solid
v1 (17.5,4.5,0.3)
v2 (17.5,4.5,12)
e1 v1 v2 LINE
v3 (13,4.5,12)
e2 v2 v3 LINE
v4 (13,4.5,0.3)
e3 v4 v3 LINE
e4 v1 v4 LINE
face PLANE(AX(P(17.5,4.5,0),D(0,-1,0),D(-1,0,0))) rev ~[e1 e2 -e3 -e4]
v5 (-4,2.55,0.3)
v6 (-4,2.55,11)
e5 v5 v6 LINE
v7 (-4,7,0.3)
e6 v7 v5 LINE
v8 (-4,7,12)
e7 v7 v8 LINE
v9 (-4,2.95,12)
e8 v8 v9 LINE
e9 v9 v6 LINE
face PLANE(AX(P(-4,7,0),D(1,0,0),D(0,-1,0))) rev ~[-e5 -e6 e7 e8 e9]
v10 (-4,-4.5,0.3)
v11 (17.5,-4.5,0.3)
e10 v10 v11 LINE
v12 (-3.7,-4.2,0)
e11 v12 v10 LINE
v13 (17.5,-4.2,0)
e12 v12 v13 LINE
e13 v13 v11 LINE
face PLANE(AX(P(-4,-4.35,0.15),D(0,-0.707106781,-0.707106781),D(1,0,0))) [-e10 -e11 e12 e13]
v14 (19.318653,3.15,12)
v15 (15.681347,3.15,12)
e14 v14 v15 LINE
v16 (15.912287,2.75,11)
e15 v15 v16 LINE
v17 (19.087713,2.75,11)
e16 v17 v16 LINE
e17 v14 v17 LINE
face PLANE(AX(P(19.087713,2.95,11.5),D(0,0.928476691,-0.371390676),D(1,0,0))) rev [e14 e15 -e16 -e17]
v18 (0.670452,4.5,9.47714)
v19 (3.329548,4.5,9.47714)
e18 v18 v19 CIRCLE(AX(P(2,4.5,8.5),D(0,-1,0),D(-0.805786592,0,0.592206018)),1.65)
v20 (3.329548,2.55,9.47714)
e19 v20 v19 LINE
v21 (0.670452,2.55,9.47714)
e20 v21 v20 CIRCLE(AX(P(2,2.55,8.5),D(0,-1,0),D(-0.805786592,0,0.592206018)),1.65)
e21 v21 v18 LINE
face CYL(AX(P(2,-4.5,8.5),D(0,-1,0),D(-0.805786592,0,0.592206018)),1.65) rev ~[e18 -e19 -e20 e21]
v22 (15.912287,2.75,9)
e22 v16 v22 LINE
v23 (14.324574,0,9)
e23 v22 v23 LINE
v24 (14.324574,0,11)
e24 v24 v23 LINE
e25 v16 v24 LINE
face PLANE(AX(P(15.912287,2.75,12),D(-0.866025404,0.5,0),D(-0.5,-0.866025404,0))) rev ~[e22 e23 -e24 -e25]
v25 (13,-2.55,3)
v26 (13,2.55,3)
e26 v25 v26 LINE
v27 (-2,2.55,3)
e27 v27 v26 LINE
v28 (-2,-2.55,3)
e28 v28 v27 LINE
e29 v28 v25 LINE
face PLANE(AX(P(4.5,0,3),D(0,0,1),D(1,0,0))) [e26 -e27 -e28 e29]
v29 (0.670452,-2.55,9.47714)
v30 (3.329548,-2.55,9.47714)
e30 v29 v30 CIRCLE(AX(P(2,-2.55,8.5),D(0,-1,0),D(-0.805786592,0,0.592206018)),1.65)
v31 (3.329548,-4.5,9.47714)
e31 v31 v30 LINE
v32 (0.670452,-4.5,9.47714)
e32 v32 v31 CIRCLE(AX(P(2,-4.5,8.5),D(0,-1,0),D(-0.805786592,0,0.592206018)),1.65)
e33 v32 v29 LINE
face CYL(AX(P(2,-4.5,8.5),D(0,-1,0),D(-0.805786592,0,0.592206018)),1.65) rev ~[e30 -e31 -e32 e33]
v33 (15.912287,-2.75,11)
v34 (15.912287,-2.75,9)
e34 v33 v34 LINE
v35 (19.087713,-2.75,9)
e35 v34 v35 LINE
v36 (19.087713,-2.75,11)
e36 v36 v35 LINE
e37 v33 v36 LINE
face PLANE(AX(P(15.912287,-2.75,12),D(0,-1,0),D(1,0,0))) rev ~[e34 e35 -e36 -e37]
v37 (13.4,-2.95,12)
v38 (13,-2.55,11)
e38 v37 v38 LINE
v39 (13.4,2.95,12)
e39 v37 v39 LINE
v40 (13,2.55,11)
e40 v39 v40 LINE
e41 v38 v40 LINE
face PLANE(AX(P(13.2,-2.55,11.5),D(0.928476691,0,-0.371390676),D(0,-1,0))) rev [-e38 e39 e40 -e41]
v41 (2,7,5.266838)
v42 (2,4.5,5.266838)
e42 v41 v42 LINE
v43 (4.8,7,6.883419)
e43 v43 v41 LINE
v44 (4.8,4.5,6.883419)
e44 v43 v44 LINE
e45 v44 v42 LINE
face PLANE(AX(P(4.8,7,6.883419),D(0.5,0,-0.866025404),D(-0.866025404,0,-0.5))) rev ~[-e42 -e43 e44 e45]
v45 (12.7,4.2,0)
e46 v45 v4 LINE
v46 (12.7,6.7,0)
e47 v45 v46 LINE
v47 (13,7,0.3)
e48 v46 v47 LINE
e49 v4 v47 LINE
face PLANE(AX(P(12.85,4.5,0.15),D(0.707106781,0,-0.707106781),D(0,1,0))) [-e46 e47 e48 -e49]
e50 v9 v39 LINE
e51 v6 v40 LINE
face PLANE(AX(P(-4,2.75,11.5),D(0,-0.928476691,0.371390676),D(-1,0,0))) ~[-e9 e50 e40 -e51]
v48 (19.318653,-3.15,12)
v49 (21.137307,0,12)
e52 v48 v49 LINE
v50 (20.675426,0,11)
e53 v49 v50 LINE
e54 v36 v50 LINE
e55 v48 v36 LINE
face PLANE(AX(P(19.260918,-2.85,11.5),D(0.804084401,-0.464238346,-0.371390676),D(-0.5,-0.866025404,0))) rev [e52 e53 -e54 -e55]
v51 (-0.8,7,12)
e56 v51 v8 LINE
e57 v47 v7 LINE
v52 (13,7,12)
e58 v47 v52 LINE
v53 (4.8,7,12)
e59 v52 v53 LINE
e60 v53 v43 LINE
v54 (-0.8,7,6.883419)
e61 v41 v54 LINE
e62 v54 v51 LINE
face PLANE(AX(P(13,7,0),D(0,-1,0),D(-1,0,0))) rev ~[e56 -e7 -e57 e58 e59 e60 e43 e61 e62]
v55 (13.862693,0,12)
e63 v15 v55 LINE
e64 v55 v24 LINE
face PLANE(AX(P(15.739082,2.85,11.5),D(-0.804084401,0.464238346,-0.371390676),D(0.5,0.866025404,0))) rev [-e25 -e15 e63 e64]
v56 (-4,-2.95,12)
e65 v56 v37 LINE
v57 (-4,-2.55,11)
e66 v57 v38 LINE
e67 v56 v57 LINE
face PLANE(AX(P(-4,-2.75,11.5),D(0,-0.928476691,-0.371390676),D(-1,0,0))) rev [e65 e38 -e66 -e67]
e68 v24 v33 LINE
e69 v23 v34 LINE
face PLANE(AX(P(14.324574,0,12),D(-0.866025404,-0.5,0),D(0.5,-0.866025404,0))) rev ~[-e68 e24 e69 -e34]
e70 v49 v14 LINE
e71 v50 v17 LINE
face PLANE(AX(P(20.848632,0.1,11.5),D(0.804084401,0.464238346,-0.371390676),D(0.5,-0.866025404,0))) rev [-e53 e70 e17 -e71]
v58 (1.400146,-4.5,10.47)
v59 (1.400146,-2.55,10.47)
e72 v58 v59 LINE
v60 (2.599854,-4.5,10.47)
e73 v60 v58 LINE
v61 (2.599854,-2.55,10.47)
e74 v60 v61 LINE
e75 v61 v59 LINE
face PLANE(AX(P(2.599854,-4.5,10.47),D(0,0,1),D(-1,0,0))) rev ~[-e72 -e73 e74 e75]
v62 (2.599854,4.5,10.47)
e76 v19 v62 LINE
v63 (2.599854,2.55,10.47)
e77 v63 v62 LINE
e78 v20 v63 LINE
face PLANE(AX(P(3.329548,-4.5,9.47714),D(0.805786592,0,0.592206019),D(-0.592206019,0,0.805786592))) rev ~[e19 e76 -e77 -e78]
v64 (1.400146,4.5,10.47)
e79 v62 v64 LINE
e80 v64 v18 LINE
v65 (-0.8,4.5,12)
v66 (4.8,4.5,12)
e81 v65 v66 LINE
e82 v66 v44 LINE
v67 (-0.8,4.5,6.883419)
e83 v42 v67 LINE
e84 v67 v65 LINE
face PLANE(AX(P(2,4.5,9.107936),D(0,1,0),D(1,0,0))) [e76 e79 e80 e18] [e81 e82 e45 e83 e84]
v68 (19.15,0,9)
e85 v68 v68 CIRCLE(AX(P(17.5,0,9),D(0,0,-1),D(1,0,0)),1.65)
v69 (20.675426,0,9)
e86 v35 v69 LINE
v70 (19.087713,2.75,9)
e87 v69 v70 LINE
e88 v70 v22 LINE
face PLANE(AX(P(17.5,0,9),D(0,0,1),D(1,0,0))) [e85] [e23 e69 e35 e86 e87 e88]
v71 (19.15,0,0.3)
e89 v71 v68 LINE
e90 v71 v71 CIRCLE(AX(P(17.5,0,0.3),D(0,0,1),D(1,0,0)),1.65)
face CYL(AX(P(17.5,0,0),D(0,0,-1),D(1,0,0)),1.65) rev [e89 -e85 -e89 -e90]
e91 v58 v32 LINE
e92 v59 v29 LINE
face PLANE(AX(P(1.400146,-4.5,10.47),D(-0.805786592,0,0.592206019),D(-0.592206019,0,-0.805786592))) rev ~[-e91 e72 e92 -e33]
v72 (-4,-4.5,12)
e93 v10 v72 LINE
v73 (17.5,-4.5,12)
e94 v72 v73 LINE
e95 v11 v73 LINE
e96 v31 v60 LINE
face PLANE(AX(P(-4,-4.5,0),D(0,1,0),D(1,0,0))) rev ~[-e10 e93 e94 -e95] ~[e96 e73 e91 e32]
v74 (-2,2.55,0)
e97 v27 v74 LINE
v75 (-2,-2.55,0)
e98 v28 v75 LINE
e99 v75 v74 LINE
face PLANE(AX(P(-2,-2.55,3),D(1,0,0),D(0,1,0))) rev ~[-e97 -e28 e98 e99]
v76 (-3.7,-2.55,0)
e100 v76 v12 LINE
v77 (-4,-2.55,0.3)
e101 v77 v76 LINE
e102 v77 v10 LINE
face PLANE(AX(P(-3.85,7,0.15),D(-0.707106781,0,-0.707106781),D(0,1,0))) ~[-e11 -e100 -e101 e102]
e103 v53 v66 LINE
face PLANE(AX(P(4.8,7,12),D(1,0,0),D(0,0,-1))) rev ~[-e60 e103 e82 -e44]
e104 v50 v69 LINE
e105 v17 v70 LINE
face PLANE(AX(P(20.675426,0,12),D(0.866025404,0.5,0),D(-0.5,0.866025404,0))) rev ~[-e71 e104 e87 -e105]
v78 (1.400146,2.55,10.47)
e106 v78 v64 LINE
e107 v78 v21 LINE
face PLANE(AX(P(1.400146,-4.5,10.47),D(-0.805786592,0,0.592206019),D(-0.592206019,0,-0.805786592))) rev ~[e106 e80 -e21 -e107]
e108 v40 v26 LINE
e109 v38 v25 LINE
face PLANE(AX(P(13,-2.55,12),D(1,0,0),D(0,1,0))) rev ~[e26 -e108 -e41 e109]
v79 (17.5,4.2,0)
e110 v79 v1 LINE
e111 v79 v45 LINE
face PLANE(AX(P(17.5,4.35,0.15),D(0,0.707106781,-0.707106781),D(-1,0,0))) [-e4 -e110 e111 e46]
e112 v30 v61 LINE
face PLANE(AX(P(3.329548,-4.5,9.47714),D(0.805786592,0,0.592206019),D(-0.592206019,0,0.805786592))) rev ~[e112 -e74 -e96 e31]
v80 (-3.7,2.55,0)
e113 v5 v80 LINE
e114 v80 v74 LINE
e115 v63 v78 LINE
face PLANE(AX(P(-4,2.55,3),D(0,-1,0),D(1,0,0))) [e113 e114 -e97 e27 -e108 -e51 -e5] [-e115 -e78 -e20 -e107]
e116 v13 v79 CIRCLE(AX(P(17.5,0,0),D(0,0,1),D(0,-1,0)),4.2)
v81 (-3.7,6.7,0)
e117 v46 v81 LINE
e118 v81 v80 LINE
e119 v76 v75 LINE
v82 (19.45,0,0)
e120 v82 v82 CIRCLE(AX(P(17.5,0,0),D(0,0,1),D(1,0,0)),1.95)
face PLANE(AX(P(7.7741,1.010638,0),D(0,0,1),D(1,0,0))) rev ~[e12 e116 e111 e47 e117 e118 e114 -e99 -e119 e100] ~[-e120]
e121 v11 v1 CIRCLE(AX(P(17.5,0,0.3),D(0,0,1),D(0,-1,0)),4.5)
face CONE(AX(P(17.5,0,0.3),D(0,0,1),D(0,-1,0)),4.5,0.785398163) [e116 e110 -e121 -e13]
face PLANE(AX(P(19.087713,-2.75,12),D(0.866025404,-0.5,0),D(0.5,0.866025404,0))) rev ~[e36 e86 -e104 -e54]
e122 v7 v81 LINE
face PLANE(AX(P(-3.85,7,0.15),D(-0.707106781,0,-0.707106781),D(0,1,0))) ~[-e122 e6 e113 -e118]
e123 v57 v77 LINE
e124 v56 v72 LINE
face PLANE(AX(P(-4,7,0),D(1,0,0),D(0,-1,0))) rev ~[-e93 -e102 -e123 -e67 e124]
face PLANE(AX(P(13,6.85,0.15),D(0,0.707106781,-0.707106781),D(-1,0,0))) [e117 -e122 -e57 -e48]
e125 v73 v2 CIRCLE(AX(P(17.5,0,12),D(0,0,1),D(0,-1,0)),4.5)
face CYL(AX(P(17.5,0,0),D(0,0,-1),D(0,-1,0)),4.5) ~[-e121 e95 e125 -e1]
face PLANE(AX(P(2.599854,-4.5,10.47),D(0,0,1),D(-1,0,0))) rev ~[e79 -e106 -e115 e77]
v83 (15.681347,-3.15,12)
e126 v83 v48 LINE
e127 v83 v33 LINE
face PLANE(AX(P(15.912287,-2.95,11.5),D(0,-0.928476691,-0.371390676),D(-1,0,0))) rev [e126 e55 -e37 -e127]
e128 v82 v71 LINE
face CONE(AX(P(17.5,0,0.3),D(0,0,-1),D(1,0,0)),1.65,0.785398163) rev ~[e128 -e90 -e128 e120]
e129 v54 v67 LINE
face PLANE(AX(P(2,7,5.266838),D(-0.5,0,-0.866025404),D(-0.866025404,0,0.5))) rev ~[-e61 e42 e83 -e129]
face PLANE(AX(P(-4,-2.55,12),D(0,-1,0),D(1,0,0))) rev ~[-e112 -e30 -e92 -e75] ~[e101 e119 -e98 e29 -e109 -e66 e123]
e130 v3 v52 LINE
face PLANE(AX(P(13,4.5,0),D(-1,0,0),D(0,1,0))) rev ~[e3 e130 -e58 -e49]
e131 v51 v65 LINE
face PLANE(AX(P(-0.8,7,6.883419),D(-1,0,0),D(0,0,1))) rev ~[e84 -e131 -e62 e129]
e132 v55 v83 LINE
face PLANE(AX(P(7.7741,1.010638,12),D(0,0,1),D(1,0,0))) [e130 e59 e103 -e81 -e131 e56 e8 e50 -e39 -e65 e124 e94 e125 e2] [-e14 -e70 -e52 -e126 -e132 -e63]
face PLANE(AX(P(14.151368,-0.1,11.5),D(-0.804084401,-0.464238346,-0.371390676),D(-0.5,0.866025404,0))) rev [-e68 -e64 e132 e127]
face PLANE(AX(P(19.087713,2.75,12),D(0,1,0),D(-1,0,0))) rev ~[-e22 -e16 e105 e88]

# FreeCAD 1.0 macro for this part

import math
import FreeCAD as App
import Part
import Sketcher
Q = App.Units.Quantity


def edges_at(feature, points):
    """Names of the edges that pass closest to the given points."""
    edges = feature.Shape.Edges
    near = lambda p: min(range(len(edges)), key=lambda i: edges[i].distToShape(Part.Vertex(*p))[0])
    return sorted({f"Edge{near(p) + 1}" for p in points})

doc = App.newDocument("Part")
body = doc.addObject("PartDesign::Body", "Body")

# Sketch on XY plane
sketch1 = body.newObject("Sketcher::SketchObject", "Sketch")
sketch1.AttachmentSupport = (doc.getObject("XY_Plane"), [""])
sketch1.MapMode = "FlatFace"
sketch1.addGeometry([
    Part.LineSegment(App.Vector(-4, 7, 0), App.Vector(-4, -4.5, 0)),  # 0
    Part.LineSegment(App.Vector(-4, -4.5, 0), App.Vector(17.5, -4.5, 0)),  # 1
    Part.ArcOfCircle(Part.Circle(App.Vector(17.5, 0, 0), App.Vector(0, 0, 1), 4.5), math.radians(-90), math.radians(90)),  # 2
    Part.LineSegment(App.Vector(17.5, 4.5, 0), App.Vector(13, 4.5, 0)),  # 3
    Part.LineSegment(App.Vector(13, 4.5, 0), App.Vector(13, 7, 0)),  # 4
    Part.LineSegment(App.Vector(13, 7, 0), App.Vector(-4, 7, 0)),  # 5
    Part.Circle(App.Vector(17.5, 0, 0), App.Vector(0, 0, 1), 1.6),  # 6
], False)
sketch1.addConstraint([
    Sketcher.Constraint("Coincident", 0, 2, 1, 1),
    Sketcher.Constraint("Tangent", 1, 2, 2, 1),
    Sketcher.Constraint("Tangent", 2, 2, 3, 1),
    Sketcher.Constraint("Coincident", 3, 2, 4, 1),
    Sketcher.Constraint("Coincident", 4, 2, 5, 1),
    Sketcher.Constraint("Coincident", 5, 2, 0, 1),
    Sketcher.Constraint("Vertical", 0),
    Sketcher.Constraint("Horizontal", 1),
    Sketcher.Constraint("Horizontal", 3),
    Sketcher.Constraint("Vertical", 4),
    Sketcher.Constraint("Horizontal", 5),
    Sketcher.Constraint("Coincident", 6, 3, 2, 3),
    Sketcher.Constraint("PointOnObject", 2, 3, -1),
    Sketcher.Constraint("Diameter", 6, Q("3.3 mm")),
    Sketcher.Constraint("Radius", 2, Q("4.5 mm")),
    Sketcher.Constraint("DistanceX", 5, 2, 5, 1, Q("17 mm")),
    Sketcher.Constraint("DistanceX", 1, 1, 1, 2, Q("21.5 mm")),
    Sketcher.Constraint("DistanceY", 0, 2, 0, 1, Q("11.5 mm")),
    Sketcher.Constraint("DistanceX", 0, 2, -1, 1, Q("4 mm")),
])
pad1 = body.newObject("PartDesign::Pad", "Pad")
pad1.Profile = sketch1
pad1.Length = 12

# Sketch on XY plane
sketch2 = body.newObject("Sketcher::SketchObject", "Sketch001")
sketch2.AttachmentSupport = (doc.getObject("XY_Plane"), [""])
sketch2.MapMode = "FlatFace"
sketch2.AttachmentOffset = App.Placement(App.Vector(0, 0, 12), App.Rotation())
sketch2.addGeometry([
    Part.LineSegment(App.Vector(-4, 3, 0), App.Vector(-4, -3, 0)),
    Part.LineSegment(App.Vector(-4, -3, 0), App.Vector(13, -3, 0)),
    Part.LineSegment(App.Vector(13, -3, 0), App.Vector(13, 3, 0)),
    Part.LineSegment(App.Vector(13, 3, 0), App.Vector(-4, 3, 0)),
], False)
sketch2.addConstraint([
    Sketcher.Constraint("Coincident", 0, 2, 1, 1),
    Sketcher.Constraint("Coincident", 1, 2, 2, 1),
    Sketcher.Constraint("Coincident", 2, 2, 3, 1),
    Sketcher.Constraint("Coincident", 3, 2, 0, 1),
    Sketcher.Constraint("Vertical", 0),
    Sketcher.Constraint("Horizontal", 1),
    Sketcher.Constraint("Vertical", 2),
    Sketcher.Constraint("Horizontal", 3),
    Sketcher.Constraint("DistanceX", 1, 1, 1, 2, Q("17 mm")),
    Sketcher.Constraint("DistanceY", 0, 2, 0, 1, Q("5.1 mm")),
    Sketcher.Constraint("DistanceX", 0, 2, -1, 1, Q("4 mm")),
    Sketcher.Constraint("DistanceY", 0, 2, -1, 1, Q("2.55 mm")),
])
pocket1 = body.newObject("PartDesign::Pocket", "Pocket")
pocket1.Profile = sketch2
pocket1.Length = 9

# Sketch on XY plane
sketch3 = body.newObject("Sketcher::SketchObject", "Sketch002")
sketch3.AttachmentSupport = (doc.getObject("XY_Plane"), [""])
sketch3.MapMode = "FlatFace"
sketch3.AttachmentOffset = App.Placement(App.Vector(0, 0, 12), App.Rotation())
sketch3.addGeometry([
    Part.LineSegment(App.Vector(14.3, 0, 0), App.Vector(15.9, -2.8, 0)),  # 0
    Part.LineSegment(App.Vector(15.9, -2.8, 0), App.Vector(19.1, -2.8, 0)),  # 1
    Part.LineSegment(App.Vector(19.1, -2.8, 0), App.Vector(20.7, 0, 0)),  # 2
    Part.LineSegment(App.Vector(20.7, 0, 0), App.Vector(19.1, 2.8, 0)),  # 3
    Part.LineSegment(App.Vector(19.1, 2.8, 0), App.Vector(15.9, 2.8, 0)),  # 4
    Part.LineSegment(App.Vector(15.9, 2.8, 0), App.Vector(14.3, 0, 0)),  # 5
], False)
sketch3.addConstraint([
    Sketcher.Constraint("Coincident", 0, 2, 1, 1),
    Sketcher.Constraint("Coincident", 1, 2, 2, 1),
    Sketcher.Constraint("Coincident", 2, 2, 3, 1),
    Sketcher.Constraint("Coincident", 3, 2, 4, 1),
    Sketcher.Constraint("Coincident", 4, 2, 5, 1),
    Sketcher.Constraint("Coincident", 5, 2, 0, 1),
    Sketcher.Constraint("Horizontal", 1),
    Sketcher.Constraint("Horizontal", 4),
    Sketcher.Constraint("Symmetric", 1, 2, 3, 2, -1),
    Sketcher.Constraint("PointOnObject", 2, 2, -1),
    Sketcher.Constraint("PointOnObject", 5, 2, -1),
    Sketcher.Constraint("Parallel", 0, 3),
    Sketcher.Constraint("Parallel", 2, 5),
    Sketcher.Constraint("Angle", 0, Q("-60 deg")),
    Sketcher.Constraint("DistanceY", 1, 2, 3, 2, Q("5.5 mm")),
    Sketcher.Constraint("DistanceX", 1, 1, 1, 2, Q("3.175426 mm")),
    Sketcher.Constraint("DistanceX", -1, 1, 0, 2, Q("15.912287 mm")),
])
pocket2 = body.newObject("PartDesign::Pocket", "Pocket001")
pocket2.Profile = sketch3
pocket2.Length = 3
doc.recompute()

chamfer = body.newObject("PartDesign::Chamfer", "Chamfer")
chamfer.Base = (pocket2, edges_at(pocket2, [
    (4.5, -2.55, 12),
    (13, 0, 12),
    (4.5, 2.55, 12),
    (15.118, 1.375, 12),
    (15.118, -1.375, 12),
    (17.5, -2.75, 12),
    (19.882, -1.375, 12),
    (19.882, 1.375, 12),
    (17.5, 2.75, 12),
]))
chamfer.ChamferType = "Two distances"
chamfer.Size = 0.4
chamfer.Size2 = 1
doc.recompute()

chamfer2 = body.newObject("PartDesign::Chamfer", "Chamfer001")
chamfer2.Base = (chamfer, edges_at(chamfer, [
    (15.85, 0, 0),
    (22, 0, 0),
    (6.75, -4.5, 0),
    (-4, 1.25, 0),
    (4.5, 7, 0),
    (13, 5.75, 0),
    (15.25, 4.5, 0),
]))
chamfer2.Size = 0.3

# Sketch on XZ plane
sketch4 = body.newObject("Sketcher::SketchObject", "Sketch003")
sketch4.AttachmentSupport = (doc.getObject("XZ_Plane"), [""])
sketch4.MapMode = "FlatFace"
sketch4.AttachmentOffset = App.Placement(App.Vector(0, 0, 4.5), App.Rotation())
sketch4.addGeometry([
    Part.LineSegment(App.Vector(2.6, 10.5, 0), App.Vector(3.3, 9.5, 0)),
    Part.ArcOfCircle(Part.Circle(App.Vector(2, 8.5, 0), App.Vector(0, 0, 1), 1.6), math.radians(144), math.radians(396)),
    Part.LineSegment(App.Vector(0.7, 9.5, 0), App.Vector(1.4, 10.5, 0)),
    Part.LineSegment(App.Vector(1.4, 10.5, 0), App.Vector(2.6, 10.5, 0)),
], False)
sketch4.addConstraint([
    Sketcher.Constraint("Tangent", 0, 2, 1, 2),
    Sketcher.Constraint("Tangent", 1, 1, 2, 1),
    Sketcher.Constraint("Coincident", 2, 2, 3, 1),
    Sketcher.Constraint("Coincident", 3, 2, 0, 1),
    Sketcher.Constraint("Horizontal", 3),
    Sketcher.Constraint("Horizontal", 0, 2, 1, 1),
    Sketcher.Constraint("Radius", 1, Q("1.65 mm")),
    Sketcher.Constraint("DistanceX", -1, 1, 1, 3, Q("2 mm")),
    Sketcher.Constraint("DistanceY", -1, 1, 1, 3, Q("8.5 mm")),
    Sketcher.Constraint("DistanceY", -1, 1, 2, 2, Q("10.47 mm")),
    Sketcher.Constraint("DistanceX", 2, 2, 0, 2, Q("1.929402 mm")),
])
pocket3 = body.newObject("PartDesign::Pocket", "Pocket002")
pocket3.Profile = sketch4
pocket3.Type = "ThroughAll"

# Sketch on XZ plane
sketch5 = body.newObject("Sketcher::SketchObject", "Sketch004")
sketch5.AttachmentSupport = (doc.getObject("XZ_Plane"), [""])
sketch5.MapMode = "FlatFace"
sketch5.AttachmentOffset = App.Placement(App.Vector(0, 0, -7), App.Rotation())
sketch5.addGeometry([
    Part.LineSegment(App.Vector(-0.8, 12, 0), App.Vector(4.8, 12, 0)),  # 0
    Part.LineSegment(App.Vector(4.8, 12, 0), App.Vector(4.8, 6.9, 0)),  # 1
    Part.LineSegment(App.Vector(4.8, 6.9, 0), App.Vector(2, 5.3, 0)),  # 2
    Part.LineSegment(App.Vector(2, 5.3, 0), App.Vector(-0.8, 6.9, 0)),  # 3
    Part.LineSegment(App.Vector(-0.8, 6.9, 0), App.Vector(-0.8, 12, 0)),  # 4
], False)
sketch5.addConstraint([
    Sketcher.Constraint("Coincident", 0, 2, 1, 1),
    Sketcher.Constraint("Coincident", 1, 2, 2, 1),
    Sketcher.Constraint("Coincident", 2, 2, 3, 1),
    Sketcher.Constraint("Coincident", 3, 2, 4, 1),
    Sketcher.Constraint("Coincident", 4, 2, 0, 1),
    Sketcher.Constraint("Horizontal", 0),
    Sketcher.Constraint("Vertical", 1),
    Sketcher.Constraint("Vertical", 4),
    Sketcher.Constraint("Horizontal", 1, 2, 3, 2),
    Sketcher.Constraint("Equal", 2, 3),
    Sketcher.Constraint("Angle", 2, Q("-150 deg")),
    Sketcher.Constraint("DistanceX", 0, 1, 0, 2, Q("5.6 mm")),
    Sketcher.Constraint("DistanceY", -1, 1, 0, 2, Q("12 mm")),
    Sketcher.Constraint("DistanceX", -1, 1, 2, 2, Q("2 mm")),
    Sketcher.Constraint("DistanceY", 1, 2, 1, 1, Q("5.116581 mm")),
])
pocket4 = body.newObject("PartDesign::Pocket", "Pocket003")
pocket4.Profile = sketch5
pocket4.Length = 2.5
pocket4.Reversed = True

# Sketch on XY plane
sketch6 = body.newObject("Sketcher::SketchObject", "Sketch005")
sketch6.AttachmentSupport = (doc.getObject("XY_Plane"), [""])
sketch6.MapMode = "FlatFace"
sketch6.AttachmentOffset = App.Placement(App.Vector(0, 0, 3), App.Rotation())
sketch6.addGeometry([
    Part.LineSegment(App.Vector(-4, 2.5, 0), App.Vector(-4, -2.5, 0)),
    Part.LineSegment(App.Vector(-4, -2.5, 0), App.Vector(-2, -2.5, 0)),
    Part.LineSegment(App.Vector(-2, -2.5, 0), App.Vector(-2, 2.5, 0)),
    Part.LineSegment(App.Vector(-2, 2.5, 0), App.Vector(-4, 2.5, 0)),
], False)
sketch6.addConstraint([
    Sketcher.Constraint("Coincident", 0, 2, 1, 1),
    Sketcher.Constraint("Coincident", 1, 2, 2, 1),
    Sketcher.Constraint("Coincident", 2, 2, 3, 1),
    Sketcher.Constraint("Coincident", 3, 2, 0, 1),
    Sketcher.Constraint("Vertical", 0),
    Sketcher.Constraint("Horizontal", 1),
    Sketcher.Constraint("Vertical", 2),
    Sketcher.Constraint("Horizontal", 3),
    Sketcher.Constraint("DistanceX", 1, 1, 1, 2, Q("2 mm")),
    Sketcher.Constraint("DistanceY", 0, 2, 0, 1, Q("5.1 mm")),
    Sketcher.Constraint("DistanceX", 0, 2, -1, 1, Q("4 mm")),
    Sketcher.Constraint("DistanceY", 0, 2, -1, 1, Q("2.55 mm")),
])
pocket5 = body.newObject("PartDesign::Pocket", "Pocket004")
pocket5.Profile = sketch6
pocket5.Type = "ThroughAll"

doc.recompute()
